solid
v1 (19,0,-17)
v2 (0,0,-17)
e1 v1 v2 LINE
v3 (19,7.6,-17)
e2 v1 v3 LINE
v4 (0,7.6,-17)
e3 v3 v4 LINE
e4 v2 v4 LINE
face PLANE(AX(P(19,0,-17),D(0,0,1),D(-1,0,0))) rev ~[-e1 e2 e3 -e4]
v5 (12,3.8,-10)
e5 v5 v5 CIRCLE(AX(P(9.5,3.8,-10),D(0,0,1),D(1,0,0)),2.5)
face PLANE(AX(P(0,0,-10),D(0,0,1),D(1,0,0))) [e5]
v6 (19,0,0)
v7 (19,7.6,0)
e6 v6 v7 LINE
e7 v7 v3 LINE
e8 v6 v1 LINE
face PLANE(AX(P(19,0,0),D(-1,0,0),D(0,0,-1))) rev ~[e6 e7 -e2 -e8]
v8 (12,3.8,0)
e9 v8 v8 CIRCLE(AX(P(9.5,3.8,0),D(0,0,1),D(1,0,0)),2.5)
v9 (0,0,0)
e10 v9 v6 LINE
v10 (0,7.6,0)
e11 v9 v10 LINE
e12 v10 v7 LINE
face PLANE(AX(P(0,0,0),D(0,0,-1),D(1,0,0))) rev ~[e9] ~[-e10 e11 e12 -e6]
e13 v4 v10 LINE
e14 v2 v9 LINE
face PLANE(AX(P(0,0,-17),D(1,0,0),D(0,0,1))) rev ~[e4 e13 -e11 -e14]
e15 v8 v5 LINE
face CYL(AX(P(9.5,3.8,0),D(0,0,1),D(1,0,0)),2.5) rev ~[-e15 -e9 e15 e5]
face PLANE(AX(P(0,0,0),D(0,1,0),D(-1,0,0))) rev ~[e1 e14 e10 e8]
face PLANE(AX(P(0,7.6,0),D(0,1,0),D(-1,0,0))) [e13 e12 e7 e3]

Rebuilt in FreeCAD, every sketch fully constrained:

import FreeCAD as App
import Part
import Sketcher

V = App.Vector

doc = App.newDocument("Part")
body = doc.addObject("PartDesign::Body", "Body")

sketch1 = body.newObject("Sketcher::SketchObject", "Sketch")
sketch1.AttachmentSupport = (doc.getObject("XZ_Plane"), [""])
sketch1.MapMode = "FlatFace"
sketch1.addGeometry([
    Part.LineSegment(V(0, -17, 0), V(0, 0, 0)),
    Part.LineSegment(V(0, 0, 0), V(19, 0, 0)),
    Part.LineSegment(V(19, 0, 0), V(19, -17, 0)),
    Part.LineSegment(V(19, -17, 0), V(0, -17, 0)),
], False)
sketch1.addConstraint([
    Sketcher.Constraint("Coincident", 0, 2, 1, 1),
    Sketcher.Constraint("Coincident", 1, 2, 2, 1),
    Sketcher.Constraint("Coincident", 2, 2, 3, 1),
    Sketcher.Constraint("Coincident", 3, 2, 0, 1),
    Sketcher.Constraint("Vertical", 0),
    Sketcher.Constraint("Horizontal", 1),
    Sketcher.Constraint("Vertical", 2),
    Sketcher.Constraint("Horizontal", 3),
    Sketcher.Constraint("Coincident", 0, 2, -1, 1),
    Sketcher.Constraint("DistanceX", 1, 1, 1, 2, 19.0),
    Sketcher.Constraint("DistanceY", 0, 1, 0, 2, 17.0),
])
pad1 = body.newObject("PartDesign::Pad", "Pad")
pad1.Profile = sketch1
pad1.Length = 7.6
pad1.Reversed = True

sketch2 = body.newObject("Sketcher::SketchObject", "Sketch001")
sketch2.AttachmentSupport = (doc.getObject("XY_Plane"), [""])
sketch2.MapMode = "FlatFace"
sketch2.addGeometry(Part.Circle(V(9.5, 3.8, 0), V(0, 0, 1), 2.5), False)
sketch2.addConstraint([
    Sketcher.Constraint("Diameter", 0, 5.0),
    Sketcher.Constraint("DistanceX", -1, 1, 0, 3, 9.5),
    Sketcher.Constraint("DistanceY", -1, 1, 0, 3, 3.8),
])
pocket1 = body.newObject("PartDesign::Pocket", "Pocket")
pocket1.Profile = sketch2
pocket1.Length = 10

doc.recompute()
